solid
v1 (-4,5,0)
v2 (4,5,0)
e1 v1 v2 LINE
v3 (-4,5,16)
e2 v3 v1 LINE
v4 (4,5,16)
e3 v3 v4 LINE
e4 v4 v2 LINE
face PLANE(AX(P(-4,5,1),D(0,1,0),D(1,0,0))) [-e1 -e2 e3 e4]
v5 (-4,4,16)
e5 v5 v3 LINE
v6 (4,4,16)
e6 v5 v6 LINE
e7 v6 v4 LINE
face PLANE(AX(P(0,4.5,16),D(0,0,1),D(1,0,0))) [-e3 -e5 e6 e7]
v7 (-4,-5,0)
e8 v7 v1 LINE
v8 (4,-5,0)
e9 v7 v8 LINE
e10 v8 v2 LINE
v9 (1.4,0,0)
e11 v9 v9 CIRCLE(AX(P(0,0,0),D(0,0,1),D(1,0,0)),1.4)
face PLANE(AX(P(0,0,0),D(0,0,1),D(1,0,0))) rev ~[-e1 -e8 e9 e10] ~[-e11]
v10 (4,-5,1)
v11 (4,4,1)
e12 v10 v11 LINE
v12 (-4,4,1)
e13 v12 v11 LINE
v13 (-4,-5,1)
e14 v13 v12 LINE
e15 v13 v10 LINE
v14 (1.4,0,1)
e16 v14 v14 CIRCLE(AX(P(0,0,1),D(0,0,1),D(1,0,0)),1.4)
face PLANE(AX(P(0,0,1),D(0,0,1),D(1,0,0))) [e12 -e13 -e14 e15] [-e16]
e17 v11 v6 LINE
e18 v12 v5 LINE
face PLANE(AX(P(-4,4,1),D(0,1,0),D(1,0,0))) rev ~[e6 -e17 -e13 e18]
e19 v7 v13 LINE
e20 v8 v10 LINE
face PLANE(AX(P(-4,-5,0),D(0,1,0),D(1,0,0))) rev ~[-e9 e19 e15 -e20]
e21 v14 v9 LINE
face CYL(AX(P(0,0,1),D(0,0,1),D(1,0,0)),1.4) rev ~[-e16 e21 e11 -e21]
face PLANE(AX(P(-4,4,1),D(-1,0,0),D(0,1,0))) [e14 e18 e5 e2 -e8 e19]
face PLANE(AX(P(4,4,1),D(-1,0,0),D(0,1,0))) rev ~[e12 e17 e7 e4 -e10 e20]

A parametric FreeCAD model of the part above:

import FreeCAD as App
import Part
import Sketcher


def add_polygon(sketch, points):
    """Adds a closed chain of lines whose ends are joined by coincident constraints."""
    first, n = sketch.GeometryCount, len(points)
    for a, b in zip(points, points[1:] + points[:1]):
        sketch.addGeometry(Part.LineSegment(App.Vector(*a, 0), App.Vector(*b, 0)), False)
    for i in range(n):
        sketch.addConstraint(Sketcher.Constraint("Coincident", first + i, 2, first + (i + 1) % n, 1))

doc = App.newDocument("Part")
body = doc.addObject("PartDesign::Body", "Body")

sketch1 = body.newObject("Sketcher::SketchObject", "Sketch")
sketch1.AttachmentSupport = (doc.getObject("XY_Plane"), [""])
sketch1.MapMode = "FlatFace"
add_polygon(sketch1, [(-4, 5), (-4, -5), (4, -5), (4, 5)])
sketch1.addConstraint(Sketcher.Constraint("Vertical", 0))
sketch1.addConstraint(Sketcher.Constraint("Horizontal", 1))
sketch1.addConstraint(Sketcher.Constraint("Vertical", 2))
sketch1.addConstraint(Sketcher.Constraint("Horizontal", 3))
sketch1.addConstraint(Sketcher.Constraint("Symmetric", 0, 2, 2, 2, -1, 1))
sketch1.addConstraint(Sketcher.Constraint("DistanceX", 1, 1, 1, 2, 8.0))
sketch1.addConstraint(Sketcher.Constraint("DistanceY", 0, 2, 0, 1, 10.0))
pad1 = body.newObject("PartDesign::Pad", "Pad")
pad1.Profile = sketch1
pad1.Length = 1

sketch2 = body.newObject("Sketcher::SketchObject", "Sketch001")
sketch2.AttachmentSupport = (doc.getObject("XY_Plane"), [""])
sketch2.MapMode = "FlatFace"
sketch2.AttachmentOffset = App.Placement(App.Vector(0, 0, 1), App.Rotation())
add_polygon(sketch2, [(-4, 5), (-4, 4), (4, 4), (4, 5)])
sketch2.addConstraint(Sketcher.Constraint("Vertical", 0))
sketch2.addConstraint(Sketcher.Constraint("Horizontal", 1))
sketch2.addConstraint(Sketcher.Constraint("Vertical", 2))
sketch2.addConstraint(Sketcher.Constraint("Horizontal", 3))
sketch2.addConstraint(Sketcher.Constraint("DistanceX", 1, 1, 1, 2, 8.0))
sketch2.addConstraint(Sketcher.Constraint("DistanceY", 0, 2, 0, 1, 1.0))
sketch2.addConstraint(Sketcher.Constraint("DistanceX", 0, 2, -1, 1, 4.0))
sketch2.addConstraint(Sketcher.Constraint("DistanceY", -1, 1, 0, 2, 4.0))
pad2 = body.newObject("PartDesign::Pad", "Pad001")
pad2.Profile = sketch2
pad2.Length = 15

sketch3 = body.newObject("Sketcher::SketchObject", "Sketch002")
sketch3.AttachmentSupport = (doc.getObject("XY_Plane"), [""])
sketch3.MapMode = "FlatFace"
sketch3.AttachmentOffset = App.Placement(App.Vector(0, 0, 1), App.Rotation())
sketch3.addGeometry(Part.Circle(App.Vector(0, 0, 0), App.Vector(0, 0, 1), 1.4), False)
sketch3.addConstraint(Sketcher.Constraint("Coincident", 0, 3, -1, 1))
sketch3.addConstraint(Sketcher.Constraint("Diameter", 0, 2.8))
pocket1 = body.newObject("PartDesign::Pocket", "Pocket")
pocket1.Profile = sketch3
pocket1.Length = 1

doc.recompute()
